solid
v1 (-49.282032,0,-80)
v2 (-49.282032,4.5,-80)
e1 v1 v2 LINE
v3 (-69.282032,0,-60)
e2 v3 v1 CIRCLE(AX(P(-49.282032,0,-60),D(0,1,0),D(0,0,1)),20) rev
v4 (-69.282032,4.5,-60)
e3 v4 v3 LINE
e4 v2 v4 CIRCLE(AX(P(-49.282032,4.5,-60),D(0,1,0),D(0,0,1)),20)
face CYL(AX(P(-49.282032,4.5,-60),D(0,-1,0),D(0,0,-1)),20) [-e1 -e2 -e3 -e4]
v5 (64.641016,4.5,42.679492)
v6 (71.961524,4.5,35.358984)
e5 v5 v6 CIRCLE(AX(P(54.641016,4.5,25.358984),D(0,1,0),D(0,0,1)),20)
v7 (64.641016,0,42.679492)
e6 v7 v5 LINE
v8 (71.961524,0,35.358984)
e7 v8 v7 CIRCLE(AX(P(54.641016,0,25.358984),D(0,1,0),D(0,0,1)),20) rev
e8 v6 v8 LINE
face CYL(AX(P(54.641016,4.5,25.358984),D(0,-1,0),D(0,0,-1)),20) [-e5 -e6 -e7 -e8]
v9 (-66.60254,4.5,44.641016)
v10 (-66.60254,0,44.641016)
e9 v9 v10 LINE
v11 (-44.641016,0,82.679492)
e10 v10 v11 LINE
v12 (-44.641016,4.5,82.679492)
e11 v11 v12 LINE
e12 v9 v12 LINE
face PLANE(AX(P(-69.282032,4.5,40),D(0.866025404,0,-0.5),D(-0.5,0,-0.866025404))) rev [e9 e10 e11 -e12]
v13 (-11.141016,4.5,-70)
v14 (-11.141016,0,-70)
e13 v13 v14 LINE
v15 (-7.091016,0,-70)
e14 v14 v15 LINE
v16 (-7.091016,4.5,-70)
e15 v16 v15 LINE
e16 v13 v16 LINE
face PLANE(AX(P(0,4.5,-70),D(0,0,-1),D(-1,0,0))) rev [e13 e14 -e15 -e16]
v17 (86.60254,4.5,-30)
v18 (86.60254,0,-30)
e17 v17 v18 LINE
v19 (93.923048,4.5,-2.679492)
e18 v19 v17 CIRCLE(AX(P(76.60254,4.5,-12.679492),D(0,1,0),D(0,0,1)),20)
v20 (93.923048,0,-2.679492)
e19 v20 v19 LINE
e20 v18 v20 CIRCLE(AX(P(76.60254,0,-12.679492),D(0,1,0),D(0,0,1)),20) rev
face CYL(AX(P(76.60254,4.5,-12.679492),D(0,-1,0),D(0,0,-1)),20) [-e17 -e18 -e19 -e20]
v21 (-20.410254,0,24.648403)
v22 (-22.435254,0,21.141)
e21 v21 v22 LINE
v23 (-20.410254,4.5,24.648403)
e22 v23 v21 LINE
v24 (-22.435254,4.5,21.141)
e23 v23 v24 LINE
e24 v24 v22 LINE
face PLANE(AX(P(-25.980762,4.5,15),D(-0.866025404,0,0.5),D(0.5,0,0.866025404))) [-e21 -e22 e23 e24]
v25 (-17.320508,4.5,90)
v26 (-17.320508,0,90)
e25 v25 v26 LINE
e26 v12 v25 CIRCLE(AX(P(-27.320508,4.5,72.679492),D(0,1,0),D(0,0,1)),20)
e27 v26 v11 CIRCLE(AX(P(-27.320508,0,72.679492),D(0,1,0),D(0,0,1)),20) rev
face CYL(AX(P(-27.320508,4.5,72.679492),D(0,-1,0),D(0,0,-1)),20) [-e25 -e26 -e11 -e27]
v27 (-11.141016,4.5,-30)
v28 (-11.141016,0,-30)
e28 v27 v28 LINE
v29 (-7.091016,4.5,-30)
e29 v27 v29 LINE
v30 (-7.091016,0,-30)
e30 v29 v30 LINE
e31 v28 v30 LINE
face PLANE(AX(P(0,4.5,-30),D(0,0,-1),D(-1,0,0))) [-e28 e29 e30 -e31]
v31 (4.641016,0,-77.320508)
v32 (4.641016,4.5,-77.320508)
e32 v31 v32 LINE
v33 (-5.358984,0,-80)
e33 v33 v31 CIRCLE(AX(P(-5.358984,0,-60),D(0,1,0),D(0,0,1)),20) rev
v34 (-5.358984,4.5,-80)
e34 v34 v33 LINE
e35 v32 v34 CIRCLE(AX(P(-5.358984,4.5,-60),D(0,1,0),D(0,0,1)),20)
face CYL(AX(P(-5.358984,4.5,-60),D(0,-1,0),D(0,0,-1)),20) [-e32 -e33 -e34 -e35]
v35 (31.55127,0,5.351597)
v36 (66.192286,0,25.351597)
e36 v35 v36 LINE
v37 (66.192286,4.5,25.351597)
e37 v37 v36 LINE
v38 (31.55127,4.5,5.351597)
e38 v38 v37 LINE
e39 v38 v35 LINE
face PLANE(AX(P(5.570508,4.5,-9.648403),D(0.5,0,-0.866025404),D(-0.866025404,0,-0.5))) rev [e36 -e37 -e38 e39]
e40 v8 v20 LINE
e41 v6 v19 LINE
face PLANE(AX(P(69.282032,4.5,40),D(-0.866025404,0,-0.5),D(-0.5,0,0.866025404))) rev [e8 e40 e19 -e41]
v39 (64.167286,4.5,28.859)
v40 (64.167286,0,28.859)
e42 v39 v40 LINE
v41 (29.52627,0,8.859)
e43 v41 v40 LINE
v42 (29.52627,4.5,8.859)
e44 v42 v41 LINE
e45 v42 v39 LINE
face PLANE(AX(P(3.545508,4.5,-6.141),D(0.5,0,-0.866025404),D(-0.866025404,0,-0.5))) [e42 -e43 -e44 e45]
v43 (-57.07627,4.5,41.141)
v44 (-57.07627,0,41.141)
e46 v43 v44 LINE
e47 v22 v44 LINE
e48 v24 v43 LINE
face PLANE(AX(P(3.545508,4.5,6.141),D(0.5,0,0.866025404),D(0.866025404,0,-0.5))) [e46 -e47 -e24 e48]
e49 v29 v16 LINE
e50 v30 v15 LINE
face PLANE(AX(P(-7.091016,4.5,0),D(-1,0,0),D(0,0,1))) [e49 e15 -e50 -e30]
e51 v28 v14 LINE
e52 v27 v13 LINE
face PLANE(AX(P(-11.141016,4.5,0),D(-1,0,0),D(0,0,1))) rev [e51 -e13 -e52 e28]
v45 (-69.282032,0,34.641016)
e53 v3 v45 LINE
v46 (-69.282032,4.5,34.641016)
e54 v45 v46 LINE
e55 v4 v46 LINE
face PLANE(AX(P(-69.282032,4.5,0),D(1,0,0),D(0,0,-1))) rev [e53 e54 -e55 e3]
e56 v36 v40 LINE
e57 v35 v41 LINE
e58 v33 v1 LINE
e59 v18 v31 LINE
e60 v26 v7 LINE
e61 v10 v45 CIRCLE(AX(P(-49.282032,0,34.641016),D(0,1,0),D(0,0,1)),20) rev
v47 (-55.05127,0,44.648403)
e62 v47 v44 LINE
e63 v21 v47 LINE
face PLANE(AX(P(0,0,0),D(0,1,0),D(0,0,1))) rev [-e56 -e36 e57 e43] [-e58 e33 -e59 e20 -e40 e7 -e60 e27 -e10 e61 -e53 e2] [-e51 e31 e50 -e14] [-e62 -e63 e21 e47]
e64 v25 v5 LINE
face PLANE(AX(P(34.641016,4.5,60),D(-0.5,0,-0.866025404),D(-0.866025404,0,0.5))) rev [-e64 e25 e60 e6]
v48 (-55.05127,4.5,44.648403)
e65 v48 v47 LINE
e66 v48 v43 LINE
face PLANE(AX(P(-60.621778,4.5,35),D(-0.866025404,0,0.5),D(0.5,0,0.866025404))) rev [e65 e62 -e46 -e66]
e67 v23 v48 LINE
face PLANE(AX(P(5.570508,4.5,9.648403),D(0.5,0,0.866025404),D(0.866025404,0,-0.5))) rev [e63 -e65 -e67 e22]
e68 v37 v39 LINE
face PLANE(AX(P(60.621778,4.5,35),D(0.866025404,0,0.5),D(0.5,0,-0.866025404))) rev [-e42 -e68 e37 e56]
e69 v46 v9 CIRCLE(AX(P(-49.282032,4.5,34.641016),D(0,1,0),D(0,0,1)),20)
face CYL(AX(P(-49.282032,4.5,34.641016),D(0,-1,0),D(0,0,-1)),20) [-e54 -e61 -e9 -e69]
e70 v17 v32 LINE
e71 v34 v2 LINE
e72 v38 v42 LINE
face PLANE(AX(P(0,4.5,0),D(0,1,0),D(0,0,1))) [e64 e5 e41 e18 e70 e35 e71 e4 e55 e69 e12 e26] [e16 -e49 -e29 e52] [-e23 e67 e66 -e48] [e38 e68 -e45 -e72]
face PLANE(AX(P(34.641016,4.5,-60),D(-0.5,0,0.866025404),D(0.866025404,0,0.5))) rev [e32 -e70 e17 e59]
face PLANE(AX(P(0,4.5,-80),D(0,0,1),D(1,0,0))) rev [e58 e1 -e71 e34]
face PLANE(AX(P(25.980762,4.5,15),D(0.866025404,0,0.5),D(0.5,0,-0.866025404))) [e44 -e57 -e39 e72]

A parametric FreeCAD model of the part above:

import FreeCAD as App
import Part
import Sketcher

V = App.Vector
Q = App.Units.Quantity


def edges_at(feature, points):
    """Names of the edges that pass closest to the given points."""
    edges = feature.Shape.Edges
    near = lambda p: min(range(len(edges)), key=lambda i: edges[i].distToShape(Part.Vertex(*p))[0])
    return sorted({f"Edge{near(p) + 1}" for p in points})

doc = App.newDocument("Part")
body = doc.addObject("PartDesign::Body", "Body")

# Sketch on XZ plane
sketch1 = body.newObject("Sketcher::SketchObject", "Sketch")
sketch1.AttachmentSupport = (doc.getObject("XZ_Plane"), [""])
sketch1.MapMode = "FlatFace"
sketch1.addGeometry([
    Part.LineSegment(V(-69.3, 40, 0), V(-34.6, 100, 0)),  # 0
    Part.LineSegment(V(-34.6, 100, 0), V(69.3, 40, 0)),  # 1
    Part.LineSegment(V(69.3, 40, 0), V(103.9, -20, 0)),  # 2
    Part.LineSegment(V(103.9, -20, 0), V(0, -80, 0)),  # 3
    Part.LineSegment(V(0, -80, 0), V(-69.3, -80, 0)),  # 4
    Part.LineSegment(V(-69.3, -80, 0), V(-69.3, 40, 0)),  # 5
    Part.LineSegment(V(-22.4, 21.1, 0), V(-20.4, 24.6, 0)),  # 6
    Part.LineSegment(V(-20.4, 24.6, 0), V(-55.1, 44.6, 0)),  # 7
    Part.LineSegment(V(-55.1, 44.6, 0), V(-57.1, 41.1, 0)),  # 8
    Part.LineSegment(V(-57.1, 41.1, 0), V(-22.4, 21.1, 0)),  # 9
    Part.LineSegment(V(66.2, 25.4, 0), V(64.2, 28.9, 0)),  # 10
    Part.LineSegment(V(64.2, 28.9, 0), V(29.5, 8.9, 0)),  # 11
    Part.LineSegment(V(29.5, 8.9, 0), V(31.6, 5.4, 0)),  # 12
    Part.LineSegment(V(31.6, 5.4, 0), V(66.2, 25.4, 0)),  # 13
    Part.LineSegment(V(-7.1, -30, 0), V(-11.1, -30, 0)),  # 14
    Part.LineSegment(V(-11.1, -30, 0), V(-11.1, -70, 0)),  # 15
    Part.LineSegment(V(-11.1, -70, 0), V(-7.1, -70, 0)),  # 16
    Part.LineSegment(V(-7.1, -70, 0), V(-7.1, -30, 0)),  # 17
], False)
sketch1.addConstraint([
    Sketcher.Constraint("Coincident", 0, 2, 1, 1),
    Sketcher.Constraint("Coincident", 1, 2, 2, 1),
    Sketcher.Constraint("Coincident", 2, 2, 3, 1),
    Sketcher.Constraint("Coincident", 3, 2, 4, 1),
    Sketcher.Constraint("Coincident", 4, 2, 5, 1),
    Sketcher.Constraint("Coincident", 5, 2, 0, 1),
    Sketcher.Constraint("Coincident", 6, 2, 7, 1),
    Sketcher.Constraint("Coincident", 7, 2, 8, 1),
    Sketcher.Constraint("Coincident", 8, 2, 9, 1),
    Sketcher.Constraint("Coincident", 9, 2, 6, 1),
    Sketcher.Constraint("Coincident", 10, 2, 11, 1),
    Sketcher.Constraint("Coincident", 11, 2, 12, 1),
    Sketcher.Constraint("Coincident", 12, 2, 13, 1),
    Sketcher.Constraint("Coincident", 13, 2, 10, 1),
    Sketcher.Constraint("Coincident", 14, 2, 15, 1),
    Sketcher.Constraint("Coincident", 15, 2, 16, 1),
    Sketcher.Constraint("Coincident", 16, 2, 17, 1),
    Sketcher.Constraint("Coincident", 17, 2, 14, 1),
    Sketcher.Constraint("Horizontal", 4),
    Sketcher.Constraint("Vertical", 5),
    Sketcher.Constraint("Horizontal", 14),
    Sketcher.Constraint("Vertical", 15),
    Sketcher.Constraint("Horizontal", 16),
    Sketcher.Constraint("Vertical", 17),
    Sketcher.Constraint("Symmetric", 1, 2, 5, 2, -2),
    Sketcher.Constraint("PointOnObject", 3, 2, -2),
    Sketcher.Constraint("Perpendicular", 0, 1),
    Sketcher.Constraint("Perpendicular", 2, 3),
    Sketcher.Constraint("Perpendicular", 1, 6),
    Sketcher.Constraint("Perpendicular", 6, 7),
    Sketcher.Constraint("Perpendicular", 7, 8),
    Sketcher.Constraint("Perpendicular", 8, 9),
    Sketcher.Constraint("Perpendicular", 3, 10),
    Sketcher.Constraint("Perpendicular", 10, 11),
    Sketcher.Constraint("Perpendicular", 11, 12),
    Sketcher.Constraint("Perpendicular", 12, 13),
    Sketcher.Constraint("Equal", 0, 2),
    Sketcher.Constraint("Equal", 1, 3),
    Sketcher.Constraint("Equal", 8, 10),
    Sketcher.Constraint("Equal", 9, 11),
    Sketcher.Constraint("DistanceY", 5, 1, 5, 2, 120.0),
    Sketcher.Constraint("DistanceY", 15, 2, 15, 1, 40.0),
    Sketcher.Constraint("Angle", 0, Q("60 deg")),
    Sketcher.Constraint("Distance", 7, 40.0),
    Sketcher.Constraint("DistanceY", -1, 1, 0, 2, 100.0),
    Sketcher.Constraint("DistanceY", 14, 2, -1, 1, 30.0),
    Sketcher.Constraint("DistanceX", 14, 2, 14, 1, 4.05),
    Sketcher.Constraint("Distance", 6, 4.05),
    Sketcher.Constraint("DistanceY", -1, 1, 8, 2, 41.141),
    Sketcher.Constraint("DistanceY", -1, 1, 10, 2, 28.859),
    Sketcher.Constraint("DistanceX", 7, 2, -1, 1, 55.05127),
    Sketcher.Constraint("DistanceX", -1, 1, 11, 2, 29.52627),
    Sketcher.Constraint("DistanceX", 14, 2, -1, 1, 11.141016),
])
pad1 = body.newObject("PartDesign::Pad", "Pad")
pad1.Profile = sketch1
pad1.Length = 4.5
pad1.Reversed = True
doc.recompute()

fillet = body.newObject("PartDesign::Fillet", "Fillet")
fillet.Base = (pad1, edges_at(pad1, [
    (-69.282, 2.25, -80),
    (0, 2.25, -80),
    (103.923, 2.25, -20),
    (69.282, 2.25, 40),
    (-34.641, 2.25, 100),
    (-69.282, 2.25, 40),
]))
fillet.Radius = 20

doc.recompute()
